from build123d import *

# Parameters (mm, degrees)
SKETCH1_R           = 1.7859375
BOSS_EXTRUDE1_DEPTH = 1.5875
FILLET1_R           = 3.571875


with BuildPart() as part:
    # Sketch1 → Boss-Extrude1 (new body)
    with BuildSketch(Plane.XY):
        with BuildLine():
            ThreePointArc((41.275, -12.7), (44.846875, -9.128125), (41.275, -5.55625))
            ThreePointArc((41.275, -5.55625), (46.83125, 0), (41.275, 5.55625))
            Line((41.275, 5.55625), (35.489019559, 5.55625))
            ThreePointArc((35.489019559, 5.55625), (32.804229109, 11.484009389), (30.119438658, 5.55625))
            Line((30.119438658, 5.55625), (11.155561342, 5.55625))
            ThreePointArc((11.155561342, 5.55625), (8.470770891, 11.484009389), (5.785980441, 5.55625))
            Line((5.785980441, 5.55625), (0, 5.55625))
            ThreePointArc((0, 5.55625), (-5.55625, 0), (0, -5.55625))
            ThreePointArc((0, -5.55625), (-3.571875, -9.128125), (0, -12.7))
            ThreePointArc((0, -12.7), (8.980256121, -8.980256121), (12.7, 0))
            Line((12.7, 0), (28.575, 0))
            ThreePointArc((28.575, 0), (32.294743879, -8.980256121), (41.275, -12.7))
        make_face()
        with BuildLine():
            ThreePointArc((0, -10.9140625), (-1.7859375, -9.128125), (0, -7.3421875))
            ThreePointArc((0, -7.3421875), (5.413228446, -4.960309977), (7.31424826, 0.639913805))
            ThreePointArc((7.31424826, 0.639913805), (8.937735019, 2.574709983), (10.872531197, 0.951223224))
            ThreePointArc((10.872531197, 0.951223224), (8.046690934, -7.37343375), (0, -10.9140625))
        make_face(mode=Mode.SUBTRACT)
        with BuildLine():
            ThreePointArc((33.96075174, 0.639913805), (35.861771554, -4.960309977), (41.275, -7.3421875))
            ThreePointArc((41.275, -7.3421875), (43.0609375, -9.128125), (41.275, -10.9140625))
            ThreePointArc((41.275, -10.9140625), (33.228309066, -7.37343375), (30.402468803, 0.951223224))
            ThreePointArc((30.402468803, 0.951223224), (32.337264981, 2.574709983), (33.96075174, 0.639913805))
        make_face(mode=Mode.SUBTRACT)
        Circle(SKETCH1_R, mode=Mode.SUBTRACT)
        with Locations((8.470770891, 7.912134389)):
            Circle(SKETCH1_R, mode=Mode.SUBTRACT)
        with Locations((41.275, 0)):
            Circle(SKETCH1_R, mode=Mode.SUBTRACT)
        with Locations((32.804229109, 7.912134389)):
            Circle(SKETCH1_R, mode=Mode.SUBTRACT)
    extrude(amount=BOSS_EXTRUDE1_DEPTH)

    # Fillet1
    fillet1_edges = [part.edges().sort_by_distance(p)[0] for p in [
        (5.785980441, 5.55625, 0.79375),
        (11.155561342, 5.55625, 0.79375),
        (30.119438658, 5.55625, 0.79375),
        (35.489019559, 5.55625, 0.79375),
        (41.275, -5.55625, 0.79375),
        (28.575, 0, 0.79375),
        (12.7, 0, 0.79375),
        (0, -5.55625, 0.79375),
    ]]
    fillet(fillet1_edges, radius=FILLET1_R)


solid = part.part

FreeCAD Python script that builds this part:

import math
import FreeCAD as App
import Part
import Sketcher

V = App.Vector
Q = App.Units.Quantity


def edges_at(feature, points):
    """Names of the edges that pass closest to the given points."""
    edges = feature.Shape.Edges
    near = lambda p: min(range(len(edges)), key=lambda i: edges[i].distToShape(Part.Vertex(*p))[0])
    return sorted({f"Edge{near(p) + 1}" for p in points})

doc = App.newDocument("Part")
body = doc.addObject("PartDesign::Body", "Body")

# Sketch on XY plane
sketch1 = body.newObject("Sketcher::SketchObject", "Sketch")
sketch1.AttachmentSupport = (doc.getObject("XY_Plane"), [""])
sketch1.MapMode = "FlatFace"
sketch1.addGeometry(Part.ArcOfCircle(Part.Circle(V(41.3, -9.1, 0), V(0, 0, 1), 3.6), math.radians(-90), math.radians(90)), False)
sketch1.addGeometry(Part.ArcOfCircle(Part.Circle(V(41.3, 0, 0), V(0, 0, 1), 5.6), math.radians(-90), math.radians(90)), False)
sketch1.addGeometry(Part.LineSegment(V(41.3, 5.6, 0), V(35.5, 5.6, 0)), False)
sketch1.addGeometry(Part.ArcOfCircle(Part.Circle(V(32.8, 7.9, 0), V(0, 0, 1), 3.6), math.radians(-41), math.radians(221)), False)
sketch1.addGeometry(Part.LineSegment(V(30.1, 5.6, 0), V(11.2, 5.6, 0)), False)
sketch1.addGeometry(Part.ArcOfCircle(Part.Circle(V(8.5, 7.9, 0), V(0, 0, 1), 3.6), math.radians(-41), math.radians(221)), False)
sketch1.addGeometry(Part.LineSegment(V(5.8, 5.6, 0), V(0, 5.6, 0)), False)
sketch1.addGeometry(Part.ArcOfCircle(Part.Circle(V(0, 0, 0), V(0, 0, 1), 5.6), math.radians(90), math.radians(270)), False)
sketch1.addGeometry(Part.ArcOfCircle(Part.Circle(V(0, -9.1, 0), V(0, 0, 1), 3.6), math.radians(90), math.radians(270)), False)
sketch1.addGeometry(Part.ArcOfCircle(Part.Circle(V(0, 0, 0), V(0, 0, 1), 12.7), math.radians(-90), math.radians(0)), False)
sketch1.addGeometry(Part.LineSegment(V(12.7, 0, 0), V(28.6, 0, 0)), False)
sketch1.addGeometry(Part.ArcOfCircle(Part.Circle(V(41.3, 0, 0), V(0, 0, 1), 12.7), math.radians(180), math.radians(270)), False)
sketch1.addGeometry(Part.ArcOfCircle(Part.Circle(V(0, 0, 0), V(0, 0, 1), 10.9), math.radians(-90), math.radians(5)), False)
sketch1.addGeometry(Part.ArcOfCircle(Part.Circle(V(0, -9.1, 0), V(0, 0, 1), 1.8), math.radians(90), math.radians(270)), False)
sketch1.addGeometry(Part.ArcOfCircle(Part.Circle(V(0, 0, 0), V(0, 0, 1), 7.3), math.radians(-90), math.radians(5)), False)
sketch1.addGeometry(Part.ArcOfCircle(Part.Circle(V(9.1, 0.8, 0), V(0, 0, 1), 1.8), math.radians(5), math.radians(185)), False)
sketch1.addGeometry(Part.ArcOfCircle(Part.Circle(V(32.2, 0.8, 0), V(0, 0, 1), 1.8), math.radians(-5), math.radians(175)), False)
sketch1.addGeometry(Part.ArcOfCircle(Part.Circle(V(41.3, 0, 0), V(0, 0, 1), 7.3), math.radians(175), math.radians(270)), False)
sketch1.addGeometry(Part.ArcOfCircle(Part.Circle(V(41.3, -9.1, 0), V(0, 0, 1), 1.8), math.radians(-90), math.radians(90)), False)
sketch1.addGeometry(Part.ArcOfCircle(Part.Circle(V(41.3, 0, 0), V(0, 0, 1), 10.9), math.radians(175), math.radians(270)), False)
sketch1.addGeometry(Part.Circle(V(0, 0, 0), V(0, 0, 1), 1.8), False)
sketch1.addGeometry(Part.Circle(V(8.5, 7.9, 0), V(0, 0, 1), 1.8), False)
sketch1.addGeometry(Part.Circle(V(41.3, 0, 0), V(0, 0, 1), 1.8), False)
sketch1.addGeometry(Part.Circle(V(32.8, 7.9, 0), V(0, 0, 1), 1.8), False)
sketch1.addConstraint(Sketcher.Constraint("Tangent", 0, 2, 1, 1))
sketch1.addConstraint(Sketcher.Constraint("Tangent", 1, 2, 2, 1))
sketch1.addConstraint(Sketcher.Constraint("Coincident", 2, 2, 3, 1))
sketch1.addConstraint(Sketcher.Constraint("Coincident", 3, 2, 4, 1))
sketch1.addConstraint(Sketcher.Constraint("Coincident", 4, 2, 5, 1))
sketch1.addConstraint(Sketcher.Constraint("Coincident", 5, 2, 6, 1))
sketch1.addConstraint(Sketcher.Constraint("Tangent", 6, 2, 7, 1))
sketch1.addConstraint(Sketcher.Constraint("Tangent", 7, 2, 8, 1))
sketch1.addConstraint(Sketcher.Constraint("Tangent", 8, 2, 9, 1))
sketch1.addConstraint(Sketcher.Constraint("Coincident", 9, 2, 10, 1))
sketch1.addConstraint(Sketcher.Constraint("Coincident", 10, 2, 11, 1))
sketch1.addConstraint(Sketcher.Constraint("Tangent", 11, 2, 0, 1))
sketch1.addConstraint(Sketcher.Constraint("Tangent", 12, 1, 13, 2))
sketch1.addConstraint(Sketcher.Constraint("Tangent", 13, 1, 14, 1))
sketch1.addConstraint(Sketcher.Constraint("Tangent", 14, 2, 15, 2))
sketch1.addConstraint(Sketcher.Constraint("Tangent", 15, 1, 12, 2))
sketch1.addConstraint(Sketcher.Constraint("Tangent", 16, 1, 17, 1))
sketch1.addConstraint(Sketcher.Constraint("Tangent", 17, 2, 18, 2))
sketch1.addConstraint(Sketcher.Constraint("Tangent", 18, 1, 19, 2))
sketch1.addConstraint(Sketcher.Constraint("Tangent", 19, 1, 16, 2))
sketch1.addConstraint(Sketcher.Constraint("Horizontal", 2))
sketch1.addConstraint(Sketcher.Constraint("Horizontal", 4))
sketch1.addConstraint(Sketcher.Constraint("Horizontal", 6))
sketch1.addConstraint(Sketcher.Constraint("Horizontal", 10))
sketch1.addConstraint(Sketcher.Constraint("Coincident", 7, 3, -1, 1))
sketch1.addConstraint(Sketcher.Constraint("Coincident", 9, 3, -1, 1))
sketch1.addConstraint(Sketcher.Constraint("Coincident", 12, 3, -1, 1))
sketch1.addConstraint(Sketcher.Constraint("Coincident", 14, 3, -1, 1))
sketch1.addConstraint(Sketcher.Constraint("Coincident", 20, 3, -1, 1))
sketch1.addConstraint(Sketcher.Constraint("Coincident", 11, 3, 1, 3))
sketch1.addConstraint(Sketcher.Constraint("Coincident", 13, 3, 8, 3))
sketch1.addConstraint(Sketcher.Constraint("Coincident", 17, 3, 1, 3))
sketch1.addConstraint(Sketcher.Constraint("Coincident", 18, 3, 0, 3))
sketch1.addConstraint(Sketcher.Constraint("Coincident", 19, 3, 1, 3))
sketch1.addConstraint(Sketcher.Constraint("Coincident", 21, 3, 5, 3))
sketch1.addConstraint(Sketcher.Constraint("Coincident", 22, 3, 1, 3))
sketch1.addConstraint(Sketcher.Constraint("Coincident", 23, 3, 3, 3))
sketch1.addConstraint(Sketcher.Constraint("Equal", 0, 3))
sketch1.addConstraint(Sketcher.Constraint("Equal", 3, 5))
sketch1.addConstraint(Sketcher.Constraint("Equal", 1, 7))
sketch1.addConstraint(Sketcher.Constraint("Equal", 5, 8))
sketch1.addConstraint(Sketcher.Constraint("Equal", 15, 16))
sketch1.addConstraint(Sketcher.Constraint("Equal", 18, 20))
sketch1.addConstraint(Sketcher.Constraint("Equal", 20, 21))
sketch1.addConstraint(Sketcher.Constraint("Equal", 21, 22))
sketch1.addConstraint(Sketcher.Constraint("Equal", 22, 23))
sketch1.addConstraint(Sketcher.Constraint("Symmetric", 0, 2, 1, 2, -1))
sketch1.addConstraint(Sketcher.Constraint("PointOnObject", 8, 3, -2))
sketch1.addConstraint(Sketcher.Constraint("PointOnObject", 9, 2, -1))
sketch1.addConstraint(Sketcher.Constraint("Horizontal", 3, 3, 5, 3))
sketch1.addConstraint(Sketcher.Constraint("Horizontal", 15, 3, 16, 3))
sketch1.addConstraint(Sketcher.Constraint("Horizontal", 2, 2, 3, 2))
sketch1.addConstraint(Sketcher.Constraint("Equal", 2, 6))
sketch1.addConstraint(Sketcher.Constraint("Radius", 9, Q("0.5 in")))
sketch1.addConstraint(Sketcher.Constraint("Diameter", 20, Q("0.140625 in")))
sketch1.addConstraint(Sketcher.Constraint("Radius", 0, Q("0.140625 in")))
sketch1.addConstraint(Sketcher.Constraint("DistanceX", 10, 1, 10, 2, Q("0.625 in")))
sketch1.addConstraint(Sketcher.Constraint("DistanceX", 2, 2, 2, 1, 5.78598))
sketch1.addConstraint(Sketcher.Constraint("DistanceX", 4, 2, 4, 1, 18.963877))
sketch1.addConstraint(Sketcher.Constraint("DistanceX", -1, 1, 15, 3, 9.09339))
pad1 = body.newObject("PartDesign::Pad", "Pad")
pad1.Profile = sketch1
pad1.Length = Q("0.0625 in")
doc.recompute()

fillet = body.newObject("PartDesign::Fillet", "Fillet")
fillet.Base = (pad1, edges_at(pad1, [
    (5.786, 5.556, 0.794),
    (11.156, 5.556, 0.794),
    (30.119, 5.556, 0.794),
    (35.489, 5.556, 0.794),
    (41.275, -5.556, 0.794),
    (28.575, 0, 0.794),
    (12.7, 0, 0.794),
    (0, -5.556, 0.794),
]))
fillet.Radius = Q("0.140625 in")

doc.recompute()
